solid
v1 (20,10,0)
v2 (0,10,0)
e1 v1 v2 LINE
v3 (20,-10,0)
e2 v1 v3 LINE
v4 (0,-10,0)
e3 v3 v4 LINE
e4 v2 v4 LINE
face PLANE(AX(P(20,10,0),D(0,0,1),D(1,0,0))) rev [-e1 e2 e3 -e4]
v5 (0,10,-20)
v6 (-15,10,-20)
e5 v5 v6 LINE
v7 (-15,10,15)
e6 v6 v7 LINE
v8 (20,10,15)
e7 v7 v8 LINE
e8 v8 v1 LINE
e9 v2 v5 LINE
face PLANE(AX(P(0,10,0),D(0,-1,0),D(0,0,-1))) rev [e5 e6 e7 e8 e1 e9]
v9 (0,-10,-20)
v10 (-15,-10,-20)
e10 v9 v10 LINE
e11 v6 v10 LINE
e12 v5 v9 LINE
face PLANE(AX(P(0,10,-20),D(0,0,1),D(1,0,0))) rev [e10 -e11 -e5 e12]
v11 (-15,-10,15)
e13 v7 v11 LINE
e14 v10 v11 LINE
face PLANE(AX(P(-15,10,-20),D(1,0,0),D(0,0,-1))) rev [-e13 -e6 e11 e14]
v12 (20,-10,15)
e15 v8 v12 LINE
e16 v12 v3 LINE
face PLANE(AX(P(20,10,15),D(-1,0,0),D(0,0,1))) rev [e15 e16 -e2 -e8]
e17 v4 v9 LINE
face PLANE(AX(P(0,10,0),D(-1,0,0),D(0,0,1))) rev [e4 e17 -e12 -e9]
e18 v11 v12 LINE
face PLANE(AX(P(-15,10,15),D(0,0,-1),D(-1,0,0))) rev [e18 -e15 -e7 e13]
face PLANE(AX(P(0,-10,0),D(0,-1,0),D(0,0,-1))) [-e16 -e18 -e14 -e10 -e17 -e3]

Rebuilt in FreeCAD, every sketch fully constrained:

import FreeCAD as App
import Part
import Sketcher
from FreeCAD import Vector
Q = App.Units.Quantity


def add_polygon(sketch, points):
    """Adds a closed chain of lines whose ends are joined by coincident constraints."""
    first, n = sketch.GeometryCount, len(points)
    for a, b in zip(points, points[1:] + points[:1]):
        sketch.addGeometry(Part.LineSegment(App.Vector(*a, 0), App.Vector(*b, 0)), False)
    for i in range(n):
        sketch.addConstraint(Sketcher.Constraint("Coincident", first + i, 2, first + (i + 1) % n, 1))

doc = App.newDocument("Part")
body = doc.addObject("PartDesign::Body", "Body")

# Sketch on XZ plane
sketch1 = body.newObject("Sketcher::SketchObject", "Sketch")
sketch1.AttachmentSupport = (doc.getObject("XZ_Plane"), [""])
sketch1.MapMode = "FlatFace"
add_polygon(sketch1, [(0, 0), (0, -20), (-15, -20), (-15, 15), (20, 15), (20, 0)])  # lines 0-5
sketch1.addConstraint(Sketcher.Constraint("Vertical", 0))
sketch1.addConstraint(Sketcher.Constraint("Horizontal", 1))
sketch1.addConstraint(Sketcher.Constraint("Vertical", 2))
sketch1.addConstraint(Sketcher.Constraint("Horizontal", 3))
sketch1.addConstraint(Sketcher.Constraint("Vertical", 4))
sketch1.addConstraint(Sketcher.Constraint("Horizontal", 5))
sketch1.addConstraint(Sketcher.Constraint("Coincident", 5, 2, -1, 1))
sketch1.addConstraint(Sketcher.Constraint("Equal", 5, 0))
sketch1.addConstraint(Sketcher.Constraint("Equal", 3, 2))
sketch1.addConstraint(Sketcher.Constraint("DistanceX", 1, 2, 1, 1, Q("15 mm")))
sketch1.addConstraint(Sketcher.Constraint("DistanceX", 3, 1, 3, 2, Q("35 mm")))
pad1 = body.newObject("PartDesign::Pad", "Pad")
pad1.Profile = sketch1
pad1.Length = 20
pad1.Midplane = True

doc.recompute()
